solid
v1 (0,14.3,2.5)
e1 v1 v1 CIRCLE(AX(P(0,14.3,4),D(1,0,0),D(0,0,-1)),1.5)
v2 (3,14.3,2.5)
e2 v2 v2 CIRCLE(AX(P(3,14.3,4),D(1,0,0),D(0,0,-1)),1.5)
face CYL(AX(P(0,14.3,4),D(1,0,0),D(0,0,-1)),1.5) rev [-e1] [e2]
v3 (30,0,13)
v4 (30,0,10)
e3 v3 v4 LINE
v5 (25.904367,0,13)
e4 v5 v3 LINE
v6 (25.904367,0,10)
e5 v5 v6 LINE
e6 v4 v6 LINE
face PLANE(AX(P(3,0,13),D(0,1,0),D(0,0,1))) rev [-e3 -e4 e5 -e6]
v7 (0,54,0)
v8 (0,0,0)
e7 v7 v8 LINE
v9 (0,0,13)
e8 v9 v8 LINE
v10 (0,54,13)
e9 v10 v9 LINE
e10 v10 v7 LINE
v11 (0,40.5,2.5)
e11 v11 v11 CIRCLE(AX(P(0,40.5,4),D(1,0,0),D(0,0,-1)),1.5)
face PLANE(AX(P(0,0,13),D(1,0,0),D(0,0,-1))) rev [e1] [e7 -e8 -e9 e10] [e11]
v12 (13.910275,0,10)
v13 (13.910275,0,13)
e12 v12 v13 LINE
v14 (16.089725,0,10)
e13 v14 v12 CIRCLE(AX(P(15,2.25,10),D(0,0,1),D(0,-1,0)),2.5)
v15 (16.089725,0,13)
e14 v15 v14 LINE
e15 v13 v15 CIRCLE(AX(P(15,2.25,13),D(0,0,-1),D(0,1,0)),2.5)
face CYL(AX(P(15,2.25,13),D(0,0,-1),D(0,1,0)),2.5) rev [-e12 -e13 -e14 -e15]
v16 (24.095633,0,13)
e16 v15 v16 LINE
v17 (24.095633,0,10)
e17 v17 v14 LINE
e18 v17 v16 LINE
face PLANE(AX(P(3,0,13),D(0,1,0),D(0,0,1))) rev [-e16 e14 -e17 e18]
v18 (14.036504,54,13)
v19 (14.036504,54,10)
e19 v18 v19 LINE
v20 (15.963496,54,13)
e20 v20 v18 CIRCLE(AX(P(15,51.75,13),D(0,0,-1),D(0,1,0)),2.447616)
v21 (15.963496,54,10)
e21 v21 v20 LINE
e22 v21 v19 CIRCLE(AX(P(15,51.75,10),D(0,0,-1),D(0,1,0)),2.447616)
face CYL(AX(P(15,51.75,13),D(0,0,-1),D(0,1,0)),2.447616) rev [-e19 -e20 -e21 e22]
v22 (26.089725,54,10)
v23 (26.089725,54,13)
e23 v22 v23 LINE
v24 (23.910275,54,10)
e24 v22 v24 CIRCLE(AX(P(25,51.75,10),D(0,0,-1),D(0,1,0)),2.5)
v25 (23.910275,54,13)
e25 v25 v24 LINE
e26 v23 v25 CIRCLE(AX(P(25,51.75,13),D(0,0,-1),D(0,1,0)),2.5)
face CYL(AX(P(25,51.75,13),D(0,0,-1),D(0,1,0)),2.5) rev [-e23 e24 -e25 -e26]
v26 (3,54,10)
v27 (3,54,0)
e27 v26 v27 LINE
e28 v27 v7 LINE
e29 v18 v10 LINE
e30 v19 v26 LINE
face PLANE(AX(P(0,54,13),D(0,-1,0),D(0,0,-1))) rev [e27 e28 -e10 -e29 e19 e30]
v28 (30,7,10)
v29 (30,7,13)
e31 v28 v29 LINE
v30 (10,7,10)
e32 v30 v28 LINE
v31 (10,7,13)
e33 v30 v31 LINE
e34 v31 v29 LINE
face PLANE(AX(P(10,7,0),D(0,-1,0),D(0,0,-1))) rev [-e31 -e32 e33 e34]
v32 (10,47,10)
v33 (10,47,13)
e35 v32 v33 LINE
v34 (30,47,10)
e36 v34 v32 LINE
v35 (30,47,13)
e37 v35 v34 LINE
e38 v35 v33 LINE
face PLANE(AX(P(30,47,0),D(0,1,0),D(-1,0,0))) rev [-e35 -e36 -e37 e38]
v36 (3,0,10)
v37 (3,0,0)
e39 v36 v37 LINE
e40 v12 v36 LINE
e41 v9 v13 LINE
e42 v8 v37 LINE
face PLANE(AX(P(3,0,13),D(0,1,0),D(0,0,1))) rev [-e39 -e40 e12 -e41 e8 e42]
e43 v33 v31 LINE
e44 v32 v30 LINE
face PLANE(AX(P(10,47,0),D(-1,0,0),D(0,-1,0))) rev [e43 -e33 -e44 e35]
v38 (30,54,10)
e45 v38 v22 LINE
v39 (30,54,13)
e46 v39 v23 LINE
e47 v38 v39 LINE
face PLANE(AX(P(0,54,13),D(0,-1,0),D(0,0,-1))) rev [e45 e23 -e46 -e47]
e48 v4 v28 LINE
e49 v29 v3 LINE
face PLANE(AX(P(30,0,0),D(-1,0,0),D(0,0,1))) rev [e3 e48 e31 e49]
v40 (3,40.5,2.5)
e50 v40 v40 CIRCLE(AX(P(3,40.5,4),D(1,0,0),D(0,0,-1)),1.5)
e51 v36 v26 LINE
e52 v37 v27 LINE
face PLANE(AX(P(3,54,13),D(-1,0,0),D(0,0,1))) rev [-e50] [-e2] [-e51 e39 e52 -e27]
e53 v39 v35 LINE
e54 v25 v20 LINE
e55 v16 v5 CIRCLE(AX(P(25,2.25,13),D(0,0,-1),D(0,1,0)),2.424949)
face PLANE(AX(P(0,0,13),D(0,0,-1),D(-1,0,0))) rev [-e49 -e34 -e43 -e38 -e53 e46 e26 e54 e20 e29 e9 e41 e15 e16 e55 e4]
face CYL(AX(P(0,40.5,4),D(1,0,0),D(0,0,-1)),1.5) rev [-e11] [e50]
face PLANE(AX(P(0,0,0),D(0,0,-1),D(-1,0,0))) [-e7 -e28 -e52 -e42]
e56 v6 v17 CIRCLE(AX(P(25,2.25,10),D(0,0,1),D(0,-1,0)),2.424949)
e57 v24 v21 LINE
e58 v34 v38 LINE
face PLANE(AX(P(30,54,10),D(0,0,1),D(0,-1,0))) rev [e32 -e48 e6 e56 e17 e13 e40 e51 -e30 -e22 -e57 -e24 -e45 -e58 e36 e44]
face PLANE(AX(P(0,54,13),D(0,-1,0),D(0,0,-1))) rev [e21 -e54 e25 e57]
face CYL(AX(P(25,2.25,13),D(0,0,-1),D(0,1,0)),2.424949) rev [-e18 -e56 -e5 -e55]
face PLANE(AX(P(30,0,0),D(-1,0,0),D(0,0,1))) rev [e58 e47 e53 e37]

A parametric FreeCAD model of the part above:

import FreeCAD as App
import Part
import Sketcher
Q = App.Units.Quantity


def add_polygon(sketch, points):
    """Adds a closed chain of lines whose ends are joined by coincident constraints."""
    first, n = sketch.GeometryCount, len(points)
    for a, b in zip(points, points[1:] + points[:1]):
        sketch.addGeometry(Part.LineSegment(App.Vector(*a, 0), App.Vector(*b, 0)), False)
    for i in range(n):
        sketch.addConstraint(Sketcher.Constraint("Coincident", first + i, 2, first + (i + 1) % n, 1))

doc = App.newDocument("Part")
body = doc.addObject("PartDesign::Body", "Body")

sketch1 = body.newObject("Sketcher::SketchObject", "Sketch")
sketch1.AttachmentSupport = (doc.getObject("XY_Plane"), [""])
sketch1.MapMode = "FlatFace"
add_polygon(sketch1, [(0, 54), (0, 0), (3, 0), (3, 54)])
sketch1.addConstraint(Sketcher.Constraint("Vertical", 0))
sketch1.addConstraint(Sketcher.Constraint("Horizontal", 1))
sketch1.addConstraint(Sketcher.Constraint("Vertical", 2))
sketch1.addConstraint(Sketcher.Constraint("Horizontal", 3))
sketch1.addConstraint(Sketcher.Constraint("Coincident", 0, 2, -1, 1))
sketch1.addConstraint(Sketcher.Constraint("DistanceX", 1, 1, 1, 2, Q("3 mm")))
sketch1.addConstraint(Sketcher.Constraint("DistanceY", 0, 2, 0, 1, Q("54 mm")))
pad1 = body.newObject("PartDesign::Pad", "Pad")
pad1.Profile = sketch1
pad1.Length = 13

sketch2 = body.newObject("Sketcher::SketchObject", "Sketch001")
sketch2.AttachmentSupport = (doc.getObject("YZ_Plane"), [""])
sketch2.MapMode = "FlatFace"
sketch2.AttachmentOffset = App.Placement(App.Vector(0, 0, 3), App.Rotation())
sketch2.addGeometry(Part.Circle(App.Vector(40.5, 4, 0), App.Vector(0, 0, 1), 1.5), False)
sketch2.addGeometry(Part.Circle(App.Vector(14.3, 4, 0), App.Vector(0, 0, 1), 1.5), False)
sketch2.addConstraint(Sketcher.Constraint("Equal", 0, 1))
sketch2.addConstraint(Sketcher.Constraint("Horizontal", 0, 3, 1, 3))
sketch2.addConstraint(Sketcher.Constraint("Diameter", 0, Q("3 mm")))
sketch2.addConstraint(Sketcher.Constraint("DistanceY", -1, 1, 0, 3, Q("4 mm")))
sketch2.addConstraint(Sketcher.Constraint("DistanceX", -1, 1, 0, 3, Q("40.5 mm")))
sketch2.addConstraint(Sketcher.Constraint("DistanceX", -1, 1, 1, 3, Q("14.3 mm")))
pocket1 = body.newObject("PartDesign::Pocket", "Pocket")
pocket1.Profile = sketch2
pocket1.Type = "ThroughAll"

sketch3 = body.newObject("Sketcher::SketchObject", "Sketch002")
sketch3.AttachmentSupport = (doc.getObject("YZ_Plane"), [""])
sketch3.MapMode = "FlatFace"
sketch3.AttachmentOffset = App.Placement(App.Vector(0, 0, 3), App.Rotation())
add_polygon(sketch3, [(54, 13), (0, 13), (0, 10), (54, 10)])
sketch3.addConstraint(Sketcher.Constraint("Horizontal", 0))
sketch3.addConstraint(Sketcher.Constraint("Vertical", 1))
sketch3.addConstraint(Sketcher.Constraint("Horizontal", 2))
sketch3.addConstraint(Sketcher.Constraint("Vertical", 3))
sketch3.addConstraint(Sketcher.Constraint("PointOnObject", 0, 2, -2))
sketch3.addConstraint(Sketcher.Constraint("DistanceX", 0, 2, 0, 1, Q("54 mm")))
sketch3.addConstraint(Sketcher.Constraint("DistanceY", 1, 2, 1, 1, Q("3 mm")))
sketch3.addConstraint(Sketcher.Constraint("DistanceY", -1, 1, 0, 2, Q("13 mm")))
pad2 = body.newObject("PartDesign::Pad", "Pad001")
pad2.Profile = sketch3
pad2.Length = 27

sketch4 = body.newObject("Sketcher::SketchObject", "Sketch003")
sketch4.AttachmentSupport = (doc.getObject("XY_Plane"), [""])
sketch4.MapMode = "FlatFace"
sketch4.AttachmentOffset = App.Placement(App.Vector(0, 0, 13), App.Rotation())
add_polygon(sketch4, [(10, 47), (10, 7), (30, 7), (30, 47)])
sketch4.addConstraint(Sketcher.Constraint("Vertical", 0))
sketch4.addConstraint(Sketcher.Constraint("Horizontal", 1))
sketch4.addConstraint(Sketcher.Constraint("Vertical", 2))
sketch4.addConstraint(Sketcher.Constraint("Horizontal", 3))
sketch4.addConstraint(Sketcher.Constraint("DistanceX", 1, 1, 1, 2, Q("20 mm")))
sketch4.addConstraint(Sketcher.Constraint("DistanceY", 0, 2, 0, 1, Q("40 mm")))
sketch4.addConstraint(Sketcher.Constraint("DistanceX", -1, 1, 0, 2, Q("10 mm")))
sketch4.addConstraint(Sketcher.Constraint("DistanceY", -1, 1, 0, 2, Q("7 mm")))
pocket2 = body.newObject("PartDesign::Pocket", "Pocket001")
pocket2.Profile = sketch4
pocket2.Type = "ThroughAll"

sketch5 = body.newObject("Sketcher::SketchObject", "Sketch004")
sketch5.AttachmentSupport = (doc.getObject("XY_Plane"), [""])
sketch5.MapMode = "FlatFace"
sketch5.AttachmentOffset = App.Placement(App.Vector(0, 0, 10), App.Rotation())
sketch5.addGeometry(Part.Circle(App.Vector(25, 51.8, 0), App.Vector(0, 0, 1), 2.5), False)
sketch5.addGeometry(Part.Circle(App.Vector(25, 2.2, 0), App.Vector(0, 0, 1), 2.4), False)
sketch5.addGeometry(Part.Circle(App.Vector(15, 51.8, 0), App.Vector(0, 0, 1), 2.4), False)
sketch5.addGeometry(Part.Circle(App.Vector(15, 2.2, 0), App.Vector(0, 0, 1), 2.5), False)
sketch5.addConstraint(Sketcher.Constraint("Equal", 0, 3))
sketch5.addConstraint(Sketcher.Constraint("Horizontal", 0, 3, 2, 3))
sketch5.addConstraint(Sketcher.Constraint("Horizontal", 1, 3, 3, 3))
sketch5.addConstraint(Sketcher.Constraint("Vertical", 0, 3, 1, 3))
sketch5.addConstraint(Sketcher.Constraint("Vertical", 2, 3, 3, 3))
sketch5.addConstraint(Sketcher.Constraint("Diameter", 0, Q("5 mm")))
sketch5.addConstraint(Sketcher.Constraint("DistanceX", -1, 1, 0, 3, Q("25 mm")))
sketch5.addConstraint(Sketcher.Constraint("DistanceX", -1, 1, 2, 3, Q("15 mm")))
sketch5.addConstraint(Sketcher.Constraint("Diameter", 1, Q("4.849899 mm")))
sketch5.addConstraint(Sketcher.Constraint("DistanceY", 1, 3, 0, 3, Q("49.5 mm")))
sketch5.addConstraint(Sketcher.Constraint("DistanceY", -1, 1, 0, 3, Q("51.75 mm")))
sketch5.addConstraint(Sketcher.Constraint("Diameter", 2, Q("4.895232 mm")))
pocket3 = body.newObject("PartDesign::Pocket", "Pocket002")
pocket3.Profile = sketch5
pocket3.Type = "ThroughAll"
pocket3.Reversed = True

doc.recompute()
